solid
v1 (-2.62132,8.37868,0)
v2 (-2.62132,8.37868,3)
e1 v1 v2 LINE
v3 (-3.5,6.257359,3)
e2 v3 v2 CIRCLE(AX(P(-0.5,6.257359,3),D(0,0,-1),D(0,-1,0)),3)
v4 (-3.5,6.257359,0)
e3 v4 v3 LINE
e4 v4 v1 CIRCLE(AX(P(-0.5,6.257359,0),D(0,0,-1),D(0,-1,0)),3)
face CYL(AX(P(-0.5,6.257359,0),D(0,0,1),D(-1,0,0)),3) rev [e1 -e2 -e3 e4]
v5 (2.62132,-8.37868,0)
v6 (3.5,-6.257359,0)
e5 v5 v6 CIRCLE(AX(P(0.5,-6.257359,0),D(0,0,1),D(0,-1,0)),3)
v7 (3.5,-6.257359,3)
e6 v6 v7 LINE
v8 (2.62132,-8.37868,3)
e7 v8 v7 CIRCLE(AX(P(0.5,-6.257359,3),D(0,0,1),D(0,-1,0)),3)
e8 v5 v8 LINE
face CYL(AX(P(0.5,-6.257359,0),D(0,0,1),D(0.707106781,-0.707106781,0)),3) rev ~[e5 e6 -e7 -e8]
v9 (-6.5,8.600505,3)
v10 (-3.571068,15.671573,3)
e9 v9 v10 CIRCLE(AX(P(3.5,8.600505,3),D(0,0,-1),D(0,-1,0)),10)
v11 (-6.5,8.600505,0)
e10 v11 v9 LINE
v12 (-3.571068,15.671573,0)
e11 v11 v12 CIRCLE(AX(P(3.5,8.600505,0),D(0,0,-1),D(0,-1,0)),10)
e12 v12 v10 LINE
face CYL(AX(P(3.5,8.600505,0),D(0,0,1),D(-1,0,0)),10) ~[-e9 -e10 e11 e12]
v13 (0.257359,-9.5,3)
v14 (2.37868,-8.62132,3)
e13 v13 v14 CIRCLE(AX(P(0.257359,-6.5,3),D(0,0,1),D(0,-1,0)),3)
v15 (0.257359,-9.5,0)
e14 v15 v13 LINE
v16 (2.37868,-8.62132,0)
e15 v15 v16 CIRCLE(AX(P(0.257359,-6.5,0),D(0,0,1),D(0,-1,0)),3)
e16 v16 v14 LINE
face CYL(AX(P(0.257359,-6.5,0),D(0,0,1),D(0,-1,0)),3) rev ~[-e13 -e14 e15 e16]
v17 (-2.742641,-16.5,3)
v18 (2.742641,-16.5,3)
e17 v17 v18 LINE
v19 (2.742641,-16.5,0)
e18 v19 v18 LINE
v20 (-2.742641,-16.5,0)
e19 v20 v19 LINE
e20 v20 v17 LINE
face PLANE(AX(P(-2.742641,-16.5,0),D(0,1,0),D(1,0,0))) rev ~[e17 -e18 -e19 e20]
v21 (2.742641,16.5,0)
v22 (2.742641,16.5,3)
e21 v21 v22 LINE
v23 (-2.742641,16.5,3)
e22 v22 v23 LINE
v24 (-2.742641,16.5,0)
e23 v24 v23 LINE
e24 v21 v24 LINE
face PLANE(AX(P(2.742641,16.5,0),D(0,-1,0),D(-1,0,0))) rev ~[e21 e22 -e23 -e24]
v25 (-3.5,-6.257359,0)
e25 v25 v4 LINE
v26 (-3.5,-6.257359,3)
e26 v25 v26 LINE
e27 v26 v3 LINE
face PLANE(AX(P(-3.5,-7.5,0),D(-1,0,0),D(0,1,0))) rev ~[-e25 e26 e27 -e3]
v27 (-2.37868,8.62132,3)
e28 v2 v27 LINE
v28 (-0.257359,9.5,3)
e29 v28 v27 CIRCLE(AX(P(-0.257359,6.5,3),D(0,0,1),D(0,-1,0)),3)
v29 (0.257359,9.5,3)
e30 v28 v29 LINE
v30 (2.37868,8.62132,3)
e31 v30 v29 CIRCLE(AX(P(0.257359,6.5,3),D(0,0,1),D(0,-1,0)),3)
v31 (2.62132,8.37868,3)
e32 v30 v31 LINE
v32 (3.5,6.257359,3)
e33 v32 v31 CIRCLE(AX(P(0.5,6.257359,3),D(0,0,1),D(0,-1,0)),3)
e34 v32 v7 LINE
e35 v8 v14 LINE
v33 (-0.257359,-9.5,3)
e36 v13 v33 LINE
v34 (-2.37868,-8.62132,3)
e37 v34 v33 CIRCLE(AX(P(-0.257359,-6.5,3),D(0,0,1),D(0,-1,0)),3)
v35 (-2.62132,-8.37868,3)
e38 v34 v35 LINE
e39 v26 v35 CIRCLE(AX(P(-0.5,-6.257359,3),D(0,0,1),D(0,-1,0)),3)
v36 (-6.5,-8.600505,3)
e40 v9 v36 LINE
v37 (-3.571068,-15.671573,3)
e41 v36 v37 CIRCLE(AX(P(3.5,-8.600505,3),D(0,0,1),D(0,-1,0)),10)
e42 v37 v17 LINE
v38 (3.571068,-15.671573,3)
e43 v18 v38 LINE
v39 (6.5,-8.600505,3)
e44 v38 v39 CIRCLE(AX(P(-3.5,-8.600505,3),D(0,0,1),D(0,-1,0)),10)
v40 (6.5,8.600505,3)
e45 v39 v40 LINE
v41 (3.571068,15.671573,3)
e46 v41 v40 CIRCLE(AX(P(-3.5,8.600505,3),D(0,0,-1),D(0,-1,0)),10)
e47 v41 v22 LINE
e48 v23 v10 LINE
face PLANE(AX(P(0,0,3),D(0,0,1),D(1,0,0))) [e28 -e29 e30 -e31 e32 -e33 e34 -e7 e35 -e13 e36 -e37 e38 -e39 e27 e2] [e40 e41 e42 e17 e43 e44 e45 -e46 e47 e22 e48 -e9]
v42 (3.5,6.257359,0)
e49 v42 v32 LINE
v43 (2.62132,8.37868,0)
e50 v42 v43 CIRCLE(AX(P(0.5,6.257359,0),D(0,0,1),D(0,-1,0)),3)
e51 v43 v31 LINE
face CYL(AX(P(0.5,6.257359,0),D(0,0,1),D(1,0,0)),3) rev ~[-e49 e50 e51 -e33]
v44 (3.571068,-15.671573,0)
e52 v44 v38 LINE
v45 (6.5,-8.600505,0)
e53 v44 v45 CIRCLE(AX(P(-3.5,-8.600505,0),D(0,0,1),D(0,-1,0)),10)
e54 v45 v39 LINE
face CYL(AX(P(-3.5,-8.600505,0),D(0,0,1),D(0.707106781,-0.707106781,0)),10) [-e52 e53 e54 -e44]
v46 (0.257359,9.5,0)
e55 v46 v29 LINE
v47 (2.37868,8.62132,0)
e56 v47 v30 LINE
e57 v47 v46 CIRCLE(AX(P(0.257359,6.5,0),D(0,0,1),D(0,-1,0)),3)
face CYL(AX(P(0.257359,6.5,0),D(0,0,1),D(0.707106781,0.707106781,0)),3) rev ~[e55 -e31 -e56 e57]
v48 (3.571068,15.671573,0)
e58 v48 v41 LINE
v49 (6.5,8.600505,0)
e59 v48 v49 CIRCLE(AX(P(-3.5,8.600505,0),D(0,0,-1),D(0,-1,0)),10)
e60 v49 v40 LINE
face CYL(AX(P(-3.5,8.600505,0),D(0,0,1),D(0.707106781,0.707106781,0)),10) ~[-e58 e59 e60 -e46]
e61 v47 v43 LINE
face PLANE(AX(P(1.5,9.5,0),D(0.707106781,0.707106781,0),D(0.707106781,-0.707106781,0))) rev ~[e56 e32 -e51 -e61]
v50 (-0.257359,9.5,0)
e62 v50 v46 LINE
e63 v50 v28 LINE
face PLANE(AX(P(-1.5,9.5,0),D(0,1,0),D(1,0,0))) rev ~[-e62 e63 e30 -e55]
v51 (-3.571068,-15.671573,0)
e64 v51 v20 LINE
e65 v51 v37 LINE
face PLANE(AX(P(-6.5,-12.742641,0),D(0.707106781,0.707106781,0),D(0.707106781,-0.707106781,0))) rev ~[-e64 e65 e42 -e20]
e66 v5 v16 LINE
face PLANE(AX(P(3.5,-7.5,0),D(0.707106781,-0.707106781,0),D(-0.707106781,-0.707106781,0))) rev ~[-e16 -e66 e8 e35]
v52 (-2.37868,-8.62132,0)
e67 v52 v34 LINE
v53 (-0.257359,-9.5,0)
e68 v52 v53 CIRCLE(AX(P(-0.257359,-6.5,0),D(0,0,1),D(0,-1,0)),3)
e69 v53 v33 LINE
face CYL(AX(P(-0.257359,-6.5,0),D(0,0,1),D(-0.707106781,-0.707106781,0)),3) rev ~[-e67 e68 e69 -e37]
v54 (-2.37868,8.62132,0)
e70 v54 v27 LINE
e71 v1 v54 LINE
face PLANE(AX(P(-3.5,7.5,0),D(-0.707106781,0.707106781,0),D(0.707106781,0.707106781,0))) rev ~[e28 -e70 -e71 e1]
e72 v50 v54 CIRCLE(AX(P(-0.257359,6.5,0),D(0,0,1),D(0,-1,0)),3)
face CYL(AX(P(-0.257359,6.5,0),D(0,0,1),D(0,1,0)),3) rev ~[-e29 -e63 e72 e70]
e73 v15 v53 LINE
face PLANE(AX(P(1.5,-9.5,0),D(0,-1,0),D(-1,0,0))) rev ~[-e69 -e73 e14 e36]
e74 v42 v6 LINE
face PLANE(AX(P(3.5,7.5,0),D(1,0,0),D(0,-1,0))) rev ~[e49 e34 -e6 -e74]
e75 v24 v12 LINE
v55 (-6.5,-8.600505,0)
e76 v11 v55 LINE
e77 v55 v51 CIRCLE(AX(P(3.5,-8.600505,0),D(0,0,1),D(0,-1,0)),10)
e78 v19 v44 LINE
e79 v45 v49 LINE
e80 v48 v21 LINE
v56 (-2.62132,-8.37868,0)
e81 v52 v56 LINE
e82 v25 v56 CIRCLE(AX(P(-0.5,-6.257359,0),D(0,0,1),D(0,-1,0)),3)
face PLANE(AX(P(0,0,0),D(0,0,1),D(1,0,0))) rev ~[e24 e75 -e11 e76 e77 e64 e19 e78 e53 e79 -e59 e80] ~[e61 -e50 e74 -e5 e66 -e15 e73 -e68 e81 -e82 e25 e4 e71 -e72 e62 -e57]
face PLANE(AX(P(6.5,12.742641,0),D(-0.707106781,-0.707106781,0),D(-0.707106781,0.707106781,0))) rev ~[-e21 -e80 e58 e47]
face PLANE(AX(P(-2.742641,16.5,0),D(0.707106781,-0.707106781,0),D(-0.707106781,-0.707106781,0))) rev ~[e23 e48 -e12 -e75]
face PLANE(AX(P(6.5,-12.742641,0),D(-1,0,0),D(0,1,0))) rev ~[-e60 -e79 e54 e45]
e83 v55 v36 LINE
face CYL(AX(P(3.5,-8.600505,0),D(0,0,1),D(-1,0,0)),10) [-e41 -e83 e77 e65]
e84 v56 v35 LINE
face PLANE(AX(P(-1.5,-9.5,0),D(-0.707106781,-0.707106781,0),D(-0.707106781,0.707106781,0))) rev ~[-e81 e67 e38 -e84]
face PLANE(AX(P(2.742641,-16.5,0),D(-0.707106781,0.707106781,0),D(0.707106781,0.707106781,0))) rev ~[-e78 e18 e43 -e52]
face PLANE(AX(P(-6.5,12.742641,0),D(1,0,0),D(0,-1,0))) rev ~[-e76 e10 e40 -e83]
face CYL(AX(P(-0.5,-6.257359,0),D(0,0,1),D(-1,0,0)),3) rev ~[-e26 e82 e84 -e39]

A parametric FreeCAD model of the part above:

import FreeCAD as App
import Part
import Sketcher
from FreeCAD import Vector
Q = App.Units.Quantity


def edges_at(feature, points):
    """Names of the edges that pass closest to the given points."""
    edges = feature.Shape.Edges
    near = lambda p: min(range(len(edges)), key=lambda i: edges[i].distToShape(Part.Vertex(*p))[0])
    return sorted({f"Edge{near(p) + 1}" for p in points})


def add_polygon(sketch, points):
    """Adds a closed chain of lines whose ends are joined by coincident constraints."""
    first, n = sketch.GeometryCount, len(points)
    for a, b in zip(points, points[1:] + points[:1]):
        sketch.addGeometry(Part.LineSegment(App.Vector(*a, 0), App.Vector(*b, 0)), False)
    for i in range(n):
        sketch.addConstraint(Sketcher.Constraint("Coincident", first + i, 2, first + (i + 1) % n, 1))

doc = App.newDocument("Part")
body = doc.addObject("PartDesign::Body", "Body")

# Sketch on XY plane
sketch1 = body.newObject("Sketcher::SketchObject", "Sketch")
sketch1.AttachmentSupport = (doc.getObject("XY_Plane"), [""])
sketch1.MapMode = "FlatFace"
add_polygon(sketch1, [(-6.5, 12.742641), (-6.5, -12.742641), (-2.742641, -16.5), (2.742641, -16.5), (6.5, -12.742641), (6.5, 12.742641), (2.742641, 16.5), (-2.742641, 16.5)])  # lines 0-7
add_polygon(sketch1, [(-3.5, -7.5), (-3.5, 7.5), (-1.5, 9.5), (1.5, 9.5), (3.5, 7.5), (3.5, -7.5), (1.5, -9.5), (-1.5, -9.5)])  # lines 8-15
sketch1.addConstraint([
    Sketcher.Constraint("Vertical", 0),
    Sketcher.Constraint("Horizontal", 2),
    Sketcher.Constraint("Vertical", 4),
    Sketcher.Constraint("Horizontal", 6),
    Sketcher.Constraint("Vertical", 8),
    Sketcher.Constraint("Horizontal", 10),
    Sketcher.Constraint("Vertical", 12),
    Sketcher.Constraint("Horizontal", 14),
    Sketcher.Constraint("Symmetric", 0, 2, 4, 2, -1, 1),
    Sketcher.Constraint("Symmetric", 1, 2, 5, 2, -1, 1),
    Sketcher.Constraint("Symmetric", 8, 2, 12, 2, -1, 1),
    Sketcher.Constraint("Symmetric", 9, 2, 13, 2, -1, 1),
    Sketcher.Constraint("Perpendicular", 1, 3),
    Sketcher.Constraint("Perpendicular", 5, 7),
    Sketcher.Constraint("Parallel", 7, 9),
    Sketcher.Constraint("Perpendicular", 9, 11),
    Sketcher.Constraint("Perpendicular", 13, 15),
    Sketcher.Constraint("Horizontal", 0, 2, 3, 2),
    Sketcher.Constraint("Horizontal", 4, 2, 7, 2),
    Sketcher.Constraint("Horizontal", 8, 2, 11, 2),
    Sketcher.Constraint("Horizontal", 12, 2, 15, 2),
    Sketcher.Constraint("Vertical", 2, 2, 5, 2),
    Sketcher.Constraint("DistanceX", 10, 1, 10, 2, Q("3 mm")),
    Sketcher.Constraint("DistanceY", 8, 1, 8, 2, Q("15 mm")),
    Sketcher.Constraint("DistanceX", 0, 2, 3, 2, Q("13 mm")),
    Sketcher.Constraint("DistanceY", 2, 2, 5, 2, Q("33 mm")),
    Sketcher.Constraint("DistanceX", 7, 2, 8, 2, Q("3 mm")),
    Sketcher.Constraint("DistanceX", 2, 1, 2, 2, Q("5.485282 mm")),
])
pad1 = body.newObject("PartDesign::Pad", "Pad")
pad1.Profile = sketch1
pad1.Length = 3
doc.recompute()

fillet = body.newObject("PartDesign::Fillet", "Fillet")
fillet.Base = (pad1, edges_at(pad1, [
    (-3.5, 7.5, 1.5),
    (3.5, 7.5, 1.5),
    (3.5, -7.5, 1.5),
    (-3.5, -7.5, 1.5),
    (-1.5, 9.5, 1.5),
    (1.5, 9.5, 1.5),
    (1.5, -9.5, 1.5),
    (-1.5, -9.5, 1.5),
]))
fillet.Radius = 3
doc.recompute()

fillet2 = body.newObject("PartDesign::Fillet", "Fillet001")
fillet2.Base = (fillet, edges_at(fillet, [
    (-6.5, 12.743, 1.5),
    (6.5, 12.743, 1.5),
    (6.5, -12.743, 1.5),
    (-6.5, -12.743, 1.5),
]))
fillet2.Radius = 10

doc.recompute()
